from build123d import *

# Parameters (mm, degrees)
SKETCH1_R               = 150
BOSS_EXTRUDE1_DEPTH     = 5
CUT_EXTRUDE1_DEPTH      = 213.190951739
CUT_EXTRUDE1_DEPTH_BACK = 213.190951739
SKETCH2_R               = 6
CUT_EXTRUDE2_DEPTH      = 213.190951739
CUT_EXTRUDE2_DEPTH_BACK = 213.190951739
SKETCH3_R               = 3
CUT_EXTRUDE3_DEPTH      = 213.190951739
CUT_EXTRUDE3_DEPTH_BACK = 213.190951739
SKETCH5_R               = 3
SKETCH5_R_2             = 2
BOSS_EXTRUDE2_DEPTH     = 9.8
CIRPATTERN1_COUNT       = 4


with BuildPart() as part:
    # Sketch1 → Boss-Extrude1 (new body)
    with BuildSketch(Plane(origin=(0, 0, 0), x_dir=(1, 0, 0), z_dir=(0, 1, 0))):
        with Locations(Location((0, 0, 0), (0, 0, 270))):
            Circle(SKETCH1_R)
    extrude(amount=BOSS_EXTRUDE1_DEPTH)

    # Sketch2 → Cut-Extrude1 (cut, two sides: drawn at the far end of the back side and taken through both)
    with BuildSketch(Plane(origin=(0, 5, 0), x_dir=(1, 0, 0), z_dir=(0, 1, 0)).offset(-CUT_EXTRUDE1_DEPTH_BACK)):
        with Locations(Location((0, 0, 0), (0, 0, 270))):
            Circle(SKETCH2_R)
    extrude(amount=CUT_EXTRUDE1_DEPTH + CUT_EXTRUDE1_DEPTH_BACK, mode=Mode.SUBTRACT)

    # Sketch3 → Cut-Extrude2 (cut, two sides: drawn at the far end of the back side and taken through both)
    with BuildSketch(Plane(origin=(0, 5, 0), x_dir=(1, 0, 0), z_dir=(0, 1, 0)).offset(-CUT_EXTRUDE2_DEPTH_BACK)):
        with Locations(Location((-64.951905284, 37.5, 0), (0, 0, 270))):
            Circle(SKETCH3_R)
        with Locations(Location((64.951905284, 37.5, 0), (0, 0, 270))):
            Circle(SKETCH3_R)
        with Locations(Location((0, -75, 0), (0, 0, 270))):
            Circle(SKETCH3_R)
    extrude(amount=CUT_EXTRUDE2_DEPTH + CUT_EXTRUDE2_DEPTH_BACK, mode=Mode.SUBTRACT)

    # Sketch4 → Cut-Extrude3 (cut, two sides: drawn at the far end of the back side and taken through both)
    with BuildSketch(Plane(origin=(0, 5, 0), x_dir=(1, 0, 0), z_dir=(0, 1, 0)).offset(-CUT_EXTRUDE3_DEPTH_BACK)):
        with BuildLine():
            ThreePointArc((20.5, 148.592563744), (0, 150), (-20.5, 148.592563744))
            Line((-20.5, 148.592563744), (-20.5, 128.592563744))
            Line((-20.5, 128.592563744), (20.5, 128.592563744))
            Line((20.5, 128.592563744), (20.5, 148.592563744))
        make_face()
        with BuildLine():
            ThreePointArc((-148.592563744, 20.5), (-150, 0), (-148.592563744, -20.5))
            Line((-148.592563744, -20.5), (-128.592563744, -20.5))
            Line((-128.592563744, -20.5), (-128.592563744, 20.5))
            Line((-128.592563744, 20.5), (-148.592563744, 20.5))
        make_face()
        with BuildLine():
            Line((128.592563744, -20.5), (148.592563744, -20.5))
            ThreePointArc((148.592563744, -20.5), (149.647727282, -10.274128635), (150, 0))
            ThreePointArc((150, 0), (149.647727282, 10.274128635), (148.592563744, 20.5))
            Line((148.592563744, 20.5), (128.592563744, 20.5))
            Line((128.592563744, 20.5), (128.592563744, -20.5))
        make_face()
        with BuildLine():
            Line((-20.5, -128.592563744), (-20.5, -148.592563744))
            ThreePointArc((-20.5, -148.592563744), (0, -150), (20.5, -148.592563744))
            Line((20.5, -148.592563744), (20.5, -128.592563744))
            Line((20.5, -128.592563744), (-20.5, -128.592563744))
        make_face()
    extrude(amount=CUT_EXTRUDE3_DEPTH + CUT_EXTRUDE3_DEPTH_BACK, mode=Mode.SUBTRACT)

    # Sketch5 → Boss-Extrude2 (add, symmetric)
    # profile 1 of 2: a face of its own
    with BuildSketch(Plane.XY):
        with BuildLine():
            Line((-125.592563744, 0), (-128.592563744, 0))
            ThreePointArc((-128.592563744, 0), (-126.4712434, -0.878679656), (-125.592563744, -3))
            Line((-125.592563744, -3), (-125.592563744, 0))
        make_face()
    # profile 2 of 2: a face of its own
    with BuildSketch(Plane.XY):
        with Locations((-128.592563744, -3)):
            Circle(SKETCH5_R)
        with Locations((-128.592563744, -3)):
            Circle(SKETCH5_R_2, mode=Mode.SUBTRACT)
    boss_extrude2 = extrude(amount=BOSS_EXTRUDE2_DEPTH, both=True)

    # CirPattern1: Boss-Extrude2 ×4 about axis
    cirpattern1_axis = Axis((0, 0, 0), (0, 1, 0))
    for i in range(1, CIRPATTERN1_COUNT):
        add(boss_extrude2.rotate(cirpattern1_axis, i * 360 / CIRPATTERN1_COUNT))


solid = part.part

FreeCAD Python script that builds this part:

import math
import FreeCAD as App
import Part
import Sketcher

V = App.Vector
Q = App.Units.Quantity

doc = App.newDocument("Part")
params = doc.addObject("Spreadsheet::Sheet", "Params")
for row, (alias, value) in enumerate([
    ("sketch1_diameter", "300 mm"),
    ("pad1_length", "5 mm"),
    ("sketch2_diameter", "12 mm"),
    ("sketch3_diameter", "6 mm"),
    ("sketch4_radius", "150 mm"),
    ("sketch4_width", "41 mm"),
    ("sketch4_width2", "20 mm"),
    ("sketch5_diameter", "4 mm"),
    ("sketch5_radius", "3 mm"),
    ("pad2_length", "19.6 mm"),
], start=1):
    params.set(f"A{row}", alias)
    params.set(f"B{row}", "=" + value)
    params.setAlias(f"B{row}", alias)

body = doc.addObject("PartDesign::Body", "Body")

sketch1 = body.newObject("Sketcher::SketchObject", "Sketch")
sketch1.AttachmentSupport = (doc.getObject("XZ_Plane"), [""])
sketch1.MapMode = "FlatFace"
sketch1.addGeometry(Part.Circle(V(0, 0, 0), V(0, 0, 1), 150), False)
sketch1.addConstraint(Sketcher.Constraint("Coincident", 0, 3, -1, 1))
sketch1.addConstraint(Sketcher.Constraint("Diameter", 0, Q("300 mm")))
sketch1.setExpression("Constraints[1]", "Params.sketch1_diameter")
pad1 = body.newObject("PartDesign::Pad", "Pad")
pad1.Profile = sketch1
pad1.setExpression("Length", "Params.pad1_length")
pad1.Reversed = True

sketch2 = body.newObject("Sketcher::SketchObject", "Sketch001")
sketch2.AttachmentSupport = (doc.getObject("XZ_Plane"), [""])
sketch2.MapMode = "FlatFace"
sketch2.AttachmentOffset = App.Placement(V(0, 0, -5), App.Rotation())
sketch2.addGeometry(Part.Circle(V(0, 0, 0), V(0, 0, 1), 6), False)
sketch2.addConstraint(Sketcher.Constraint("Coincident", 0, 3, -1, 1))
sketch2.addConstraint(Sketcher.Constraint("Diameter", 0, Q("12 mm")))
sketch2.setExpression("Constraints[1]", "Params.sketch2_diameter")
pocket1 = body.newObject("PartDesign::Pocket", "Pocket")
pocket1.Profile = sketch2
pocket1.Type = "ThroughAll"
pocket1.Midplane = True

sketch3 = body.newObject("Sketcher::SketchObject", "Sketch002")
sketch3.AttachmentSupport = (doc.getObject("XZ_Plane"), [""])
sketch3.MapMode = "FlatFace"
sketch3.AttachmentOffset = App.Placement(V(0, 0, -5), App.Rotation())
sketch3.addGeometry(Part.Circle(V(-65, -37.5, 0), V(0, 0, 1), 3), False)
sketch3.addGeometry(Part.Circle(V(65, -37.5, 0), V(0, 0, 1), 3), False)
sketch3.addGeometry(Part.Circle(V(0, 75, 0), V(0, 0, 1), 3), False)
sketch3.addConstraint(Sketcher.Constraint("Equal", 0, 1))
sketch3.addConstraint(Sketcher.Constraint("Equal", 1, 2))
sketch3.addConstraint(Sketcher.Constraint("Symmetric", 0, 3, 1, 3, -2))
sketch3.addConstraint(Sketcher.Constraint("PointOnObject", 2, 3, -2))
sketch3.addConstraint(Sketcher.Constraint("Diameter", 0, Q("6 mm")))
sketch3.addConstraint(Sketcher.Constraint("DistanceY", -1, 1, 2, 3, Q("75 mm")))
sketch3.addConstraint(Sketcher.Constraint("DistanceY", 0, 3, -1, 1, Q("37.5 mm")))
sketch3.addConstraint(Sketcher.Constraint("DistanceX", 0, 3, 1, 3, Q("129.903811 mm")))
sketch3.setExpression("Constraints[4]", "Params.sketch3_diameter")
pocket2 = body.newObject("PartDesign::Pocket", "Pocket001")
pocket2.Profile = sketch3
pocket2.Type = "ThroughAll"
pocket2.Midplane = True

sketch4 = body.newObject("Sketcher::SketchObject", "Sketch003")
sketch4.AttachmentSupport = (doc.getObject("XZ_Plane"), [""])
sketch4.MapMode = "FlatFace"
sketch4.AttachmentOffset = App.Placement(V(0, 0, -5), App.Rotation())
sketch4.addGeometry(Part.ArcOfCircle(Part.Circle(V(0, 0, 0), V(0, 0, 1), 150), math.radians(-97.86), math.radians(-82.14)), False)
sketch4.addGeometry(Part.LineSegment(V(-20, -149, 0), V(-20, -129, 0)), False)
sketch4.addGeometry(Part.LineSegment(V(-20, -129, 0), V(20, -129, 0)), False)
sketch4.addGeometry(Part.LineSegment(V(20, -129, 0), V(20, -149, 0)), False)
sketch4.addGeometry(Part.ArcOfCircle(Part.Circle(V(0, 0, 0), V(0, 0, 1), 150), math.radians(172.14), math.radians(187.86)), False)
sketch4.addGeometry(Part.LineSegment(V(-149, 20, 0), V(-129, 20, 0)), False)
sketch4.addGeometry(Part.LineSegment(V(-129, 20, 0), V(-129, -20, 0)), False)
sketch4.addGeometry(Part.LineSegment(V(-129, -20, 0), V(-149, -20, 0)), False)
sketch4.addGeometry(Part.LineSegment(V(129, 20, 0), V(149, 20, 0)), False)
sketch4.addGeometry(Part.ArcOfCircle(Part.Circle(V(0, 0, 0), V(0, 0, 1), 150), math.radians(0), math.radians(7.86)), False)
sketch4.addGeometry(Part.ArcOfCircle(Part.Circle(V(0, 0, 0), V(0, 0, 1), 150), math.radians(-7.86), math.radians(0)), False)
sketch4.addGeometry(Part.LineSegment(V(149, -20, 0), V(129, -20, 0)), False)
sketch4.addGeometry(Part.LineSegment(V(129, -20, 0), V(129, 20, 0)), False)
sketch4.addGeometry(Part.LineSegment(V(-20, 129, 0), V(-20, 149, 0)), False)
sketch4.addGeometry(Part.ArcOfCircle(Part.Circle(V(0, 0, 0), V(0, 0, 1), 150), math.radians(82.14), math.radians(97.86)), False)
sketch4.addGeometry(Part.LineSegment(V(20, 149, 0), V(20, 129, 0)), False)
sketch4.addGeometry(Part.LineSegment(V(20, 129, 0), V(-20, 129, 0)), False)
sketch4.addConstraint(Sketcher.Constraint("Coincident", 0, 1, 1, 1))
sketch4.addConstraint(Sketcher.Constraint("Coincident", 1, 2, 2, 1))
sketch4.addConstraint(Sketcher.Constraint("Coincident", 2, 2, 3, 1))
sketch4.addConstraint(Sketcher.Constraint("Coincident", 3, 2, 0, 2))
sketch4.addConstraint(Sketcher.Constraint("Coincident", 4, 1, 5, 1))
sketch4.addConstraint(Sketcher.Constraint("Coincident", 5, 2, 6, 1))
sketch4.addConstraint(Sketcher.Constraint("Coincident", 6, 2, 7, 1))
sketch4.addConstraint(Sketcher.Constraint("Coincident", 7, 2, 4, 2))
sketch4.addConstraint(Sketcher.Constraint("Coincident", 8, 2, 9, 2))
sketch4.addConstraint(Sketcher.Constraint("Tangent", 9, 1, 10, 2))
sketch4.addConstraint(Sketcher.Constraint("Coincident", 10, 1, 11, 1))
sketch4.addConstraint(Sketcher.Constraint("Coincident", 11, 2, 12, 1))
sketch4.addConstraint(Sketcher.Constraint("Coincident", 12, 2, 8, 1))
sketch4.addConstraint(Sketcher.Constraint("Coincident", 13, 2, 14, 2))
sketch4.addConstraint(Sketcher.Constraint("Coincident", 14, 1, 15, 1))
sketch4.addConstraint(Sketcher.Constraint("Coincident", 15, 2, 16, 1))
sketch4.addConstraint(Sketcher.Constraint("Coincident", 16, 2, 13, 1))
sketch4.addConstraint(Sketcher.Constraint("Vertical", 1))
sketch4.addConstraint(Sketcher.Constraint("Horizontal", 2))
sketch4.addConstraint(Sketcher.Constraint("Vertical", 3))
sketch4.addConstraint(Sketcher.Constraint("Horizontal", 5))
sketch4.addConstraint(Sketcher.Constraint("Vertical", 6))
sketch4.addConstraint(Sketcher.Constraint("Horizontal", 7))
sketch4.addConstraint(Sketcher.Constraint("Horizontal", 8))
sketch4.addConstraint(Sketcher.Constraint("Horizontal", 11))
sketch4.addConstraint(Sketcher.Constraint("Vertical", 12))
sketch4.addConstraint(Sketcher.Constraint("Vertical", 13))
sketch4.addConstraint(Sketcher.Constraint("Vertical", 15))
sketch4.addConstraint(Sketcher.Constraint("Horizontal", 16))
sketch4.addConstraint(Sketcher.Constraint("Coincident", 0, 3, -1, 1))
sketch4.addConstraint(Sketcher.Constraint("Coincident", 4, 3, -1, 1))
sketch4.addConstraint(Sketcher.Constraint("Coincident", 9, 3, -1, 1))
sketch4.addConstraint(Sketcher.Constraint("Coincident", 14, 3, -1, 1))
sketch4.addConstraint(Sketcher.Constraint("Equal", 0, 4))
sketch4.addConstraint(Sketcher.Constraint("Equal", 4, 9))
sketch4.addConstraint(Sketcher.Constraint("Equal", 9, 10))
sketch4.addConstraint(Sketcher.Constraint("Equal", 10, 14))
sketch4.addConstraint(Sketcher.Constraint("Symmetric", 5, 2, 11, 2, -1, 1))
sketch4.addConstraint(Sketcher.Constraint("Symmetric", 1, 2, 15, 2, -1, 1))
sketch4.addConstraint(Sketcher.Constraint("PointOnObject", 9, 1, -1))
sketch4.addConstraint(Sketcher.Constraint("Horizontal", 0, 1, 3, 2))
sketch4.addConstraint(Sketcher.Constraint("Horizontal", 5, 2, 8, 2))
sketch4.addConstraint(Sketcher.Constraint("Horizontal", 7, 2, 10, 1))
sketch4.addConstraint(Sketcher.Constraint("Horizontal", 13, 2, 14, 1))
sketch4.addConstraint(Sketcher.Constraint("Equal", 11, 1))
sketch4.addConstraint(Sketcher.Constraint("Equal", 16, 6))
sketch4.addConstraint(Sketcher.Constraint("Radius", 0, Q("150 mm")))
sketch4.addConstraint(Sketcher.Constraint("DistanceX", 2, 1, 2, 2, Q("41 mm")))
sketch4.addConstraint(Sketcher.Constraint("DistanceX", 5, 1, 5, 2, Q("20 mm")))
sketch4.setExpression("Constraints[46]", "Params.sketch4_radius")
sketch4.setExpression("Constraints[47]", "Params.sketch4_width")
sketch4.setExpression("Constraints[48]", "Params.sketch4_width2")
pocket3 = body.newObject("PartDesign::Pocket", "Pocket002")
pocket3.Profile = sketch4
pocket3.Type = "ThroughAll"
pocket3.Midplane = True

sketch5 = body.newObject("Sketcher::SketchObject", "Sketch004")
sketch5.AttachmentSupport = (doc.getObject("XY_Plane"), [""])
sketch5.MapMode = "FlatFace"
sketch5.addGeometry(Part.LineSegment(V(-125.6, 0, 0), V(-128.6, 0, 0)), False)
sketch5.addGeometry(Part.ArcOfCircle(Part.Circle(V(-128.6, -3, 0), V(0, 0, 1), 3), math.radians(90), math.radians(360)), False)
sketch5.addGeometry(Part.LineSegment(V(-125.6, -3, 0), V(-125.6, 0, 0)), False)
sketch5.addGeometry(Part.Circle(V(-128.6, -3, 0), V(0, 0, 1), 2), False)
sketch5.addConstraint(Sketcher.Constraint("Tangent", 0, 2, 1, 1))
sketch5.addConstraint(Sketcher.Constraint("Tangent", 1, 2, 2, 1))
sketch5.addConstraint(Sketcher.Constraint("Coincident", 2, 2, 0, 1))
sketch5.addConstraint(Sketcher.Constraint("Horizontal", 0))
sketch5.addConstraint(Sketcher.Constraint("Vertical", 2))
sketch5.addConstraint(Sketcher.Constraint("Coincident", 3, 3, 1, 3))
sketch5.addConstraint(Sketcher.Constraint("PointOnObject", 0, 2, -1))
sketch5.addConstraint(Sketcher.Constraint("Diameter", 3, Q("4 mm")))
sketch5.addConstraint(Sketcher.Constraint("Radius", 1, Q("3 mm")))
sketch5.addConstraint(Sketcher.Constraint("DistanceX", 1, 3, -1, 1, Q("128.592564 mm")))
sketch5.setExpression("Constraints[7]", "Params.sketch5_diameter")
sketch5.setExpression("Constraints[8]", "Params.sketch5_radius")
pad2 = body.newObject("PartDesign::Pad", "Pad001")
pad2.Profile = sketch5
pad2.setExpression("Length", "Params.pad2_length")
pad2.Midplane = True
doc.recompute()

polarpattern = body.newObject("PartDesign::PolarPattern", "PolarPattern")
polarpattern.Originals = [pad2]
polarpattern.Axis = (doc.getObject("Y_Axis"), [""])
polarpattern.Angle = 360
polarpattern.Occurrences = 4
body.Tip = polarpattern

doc.recompute()
